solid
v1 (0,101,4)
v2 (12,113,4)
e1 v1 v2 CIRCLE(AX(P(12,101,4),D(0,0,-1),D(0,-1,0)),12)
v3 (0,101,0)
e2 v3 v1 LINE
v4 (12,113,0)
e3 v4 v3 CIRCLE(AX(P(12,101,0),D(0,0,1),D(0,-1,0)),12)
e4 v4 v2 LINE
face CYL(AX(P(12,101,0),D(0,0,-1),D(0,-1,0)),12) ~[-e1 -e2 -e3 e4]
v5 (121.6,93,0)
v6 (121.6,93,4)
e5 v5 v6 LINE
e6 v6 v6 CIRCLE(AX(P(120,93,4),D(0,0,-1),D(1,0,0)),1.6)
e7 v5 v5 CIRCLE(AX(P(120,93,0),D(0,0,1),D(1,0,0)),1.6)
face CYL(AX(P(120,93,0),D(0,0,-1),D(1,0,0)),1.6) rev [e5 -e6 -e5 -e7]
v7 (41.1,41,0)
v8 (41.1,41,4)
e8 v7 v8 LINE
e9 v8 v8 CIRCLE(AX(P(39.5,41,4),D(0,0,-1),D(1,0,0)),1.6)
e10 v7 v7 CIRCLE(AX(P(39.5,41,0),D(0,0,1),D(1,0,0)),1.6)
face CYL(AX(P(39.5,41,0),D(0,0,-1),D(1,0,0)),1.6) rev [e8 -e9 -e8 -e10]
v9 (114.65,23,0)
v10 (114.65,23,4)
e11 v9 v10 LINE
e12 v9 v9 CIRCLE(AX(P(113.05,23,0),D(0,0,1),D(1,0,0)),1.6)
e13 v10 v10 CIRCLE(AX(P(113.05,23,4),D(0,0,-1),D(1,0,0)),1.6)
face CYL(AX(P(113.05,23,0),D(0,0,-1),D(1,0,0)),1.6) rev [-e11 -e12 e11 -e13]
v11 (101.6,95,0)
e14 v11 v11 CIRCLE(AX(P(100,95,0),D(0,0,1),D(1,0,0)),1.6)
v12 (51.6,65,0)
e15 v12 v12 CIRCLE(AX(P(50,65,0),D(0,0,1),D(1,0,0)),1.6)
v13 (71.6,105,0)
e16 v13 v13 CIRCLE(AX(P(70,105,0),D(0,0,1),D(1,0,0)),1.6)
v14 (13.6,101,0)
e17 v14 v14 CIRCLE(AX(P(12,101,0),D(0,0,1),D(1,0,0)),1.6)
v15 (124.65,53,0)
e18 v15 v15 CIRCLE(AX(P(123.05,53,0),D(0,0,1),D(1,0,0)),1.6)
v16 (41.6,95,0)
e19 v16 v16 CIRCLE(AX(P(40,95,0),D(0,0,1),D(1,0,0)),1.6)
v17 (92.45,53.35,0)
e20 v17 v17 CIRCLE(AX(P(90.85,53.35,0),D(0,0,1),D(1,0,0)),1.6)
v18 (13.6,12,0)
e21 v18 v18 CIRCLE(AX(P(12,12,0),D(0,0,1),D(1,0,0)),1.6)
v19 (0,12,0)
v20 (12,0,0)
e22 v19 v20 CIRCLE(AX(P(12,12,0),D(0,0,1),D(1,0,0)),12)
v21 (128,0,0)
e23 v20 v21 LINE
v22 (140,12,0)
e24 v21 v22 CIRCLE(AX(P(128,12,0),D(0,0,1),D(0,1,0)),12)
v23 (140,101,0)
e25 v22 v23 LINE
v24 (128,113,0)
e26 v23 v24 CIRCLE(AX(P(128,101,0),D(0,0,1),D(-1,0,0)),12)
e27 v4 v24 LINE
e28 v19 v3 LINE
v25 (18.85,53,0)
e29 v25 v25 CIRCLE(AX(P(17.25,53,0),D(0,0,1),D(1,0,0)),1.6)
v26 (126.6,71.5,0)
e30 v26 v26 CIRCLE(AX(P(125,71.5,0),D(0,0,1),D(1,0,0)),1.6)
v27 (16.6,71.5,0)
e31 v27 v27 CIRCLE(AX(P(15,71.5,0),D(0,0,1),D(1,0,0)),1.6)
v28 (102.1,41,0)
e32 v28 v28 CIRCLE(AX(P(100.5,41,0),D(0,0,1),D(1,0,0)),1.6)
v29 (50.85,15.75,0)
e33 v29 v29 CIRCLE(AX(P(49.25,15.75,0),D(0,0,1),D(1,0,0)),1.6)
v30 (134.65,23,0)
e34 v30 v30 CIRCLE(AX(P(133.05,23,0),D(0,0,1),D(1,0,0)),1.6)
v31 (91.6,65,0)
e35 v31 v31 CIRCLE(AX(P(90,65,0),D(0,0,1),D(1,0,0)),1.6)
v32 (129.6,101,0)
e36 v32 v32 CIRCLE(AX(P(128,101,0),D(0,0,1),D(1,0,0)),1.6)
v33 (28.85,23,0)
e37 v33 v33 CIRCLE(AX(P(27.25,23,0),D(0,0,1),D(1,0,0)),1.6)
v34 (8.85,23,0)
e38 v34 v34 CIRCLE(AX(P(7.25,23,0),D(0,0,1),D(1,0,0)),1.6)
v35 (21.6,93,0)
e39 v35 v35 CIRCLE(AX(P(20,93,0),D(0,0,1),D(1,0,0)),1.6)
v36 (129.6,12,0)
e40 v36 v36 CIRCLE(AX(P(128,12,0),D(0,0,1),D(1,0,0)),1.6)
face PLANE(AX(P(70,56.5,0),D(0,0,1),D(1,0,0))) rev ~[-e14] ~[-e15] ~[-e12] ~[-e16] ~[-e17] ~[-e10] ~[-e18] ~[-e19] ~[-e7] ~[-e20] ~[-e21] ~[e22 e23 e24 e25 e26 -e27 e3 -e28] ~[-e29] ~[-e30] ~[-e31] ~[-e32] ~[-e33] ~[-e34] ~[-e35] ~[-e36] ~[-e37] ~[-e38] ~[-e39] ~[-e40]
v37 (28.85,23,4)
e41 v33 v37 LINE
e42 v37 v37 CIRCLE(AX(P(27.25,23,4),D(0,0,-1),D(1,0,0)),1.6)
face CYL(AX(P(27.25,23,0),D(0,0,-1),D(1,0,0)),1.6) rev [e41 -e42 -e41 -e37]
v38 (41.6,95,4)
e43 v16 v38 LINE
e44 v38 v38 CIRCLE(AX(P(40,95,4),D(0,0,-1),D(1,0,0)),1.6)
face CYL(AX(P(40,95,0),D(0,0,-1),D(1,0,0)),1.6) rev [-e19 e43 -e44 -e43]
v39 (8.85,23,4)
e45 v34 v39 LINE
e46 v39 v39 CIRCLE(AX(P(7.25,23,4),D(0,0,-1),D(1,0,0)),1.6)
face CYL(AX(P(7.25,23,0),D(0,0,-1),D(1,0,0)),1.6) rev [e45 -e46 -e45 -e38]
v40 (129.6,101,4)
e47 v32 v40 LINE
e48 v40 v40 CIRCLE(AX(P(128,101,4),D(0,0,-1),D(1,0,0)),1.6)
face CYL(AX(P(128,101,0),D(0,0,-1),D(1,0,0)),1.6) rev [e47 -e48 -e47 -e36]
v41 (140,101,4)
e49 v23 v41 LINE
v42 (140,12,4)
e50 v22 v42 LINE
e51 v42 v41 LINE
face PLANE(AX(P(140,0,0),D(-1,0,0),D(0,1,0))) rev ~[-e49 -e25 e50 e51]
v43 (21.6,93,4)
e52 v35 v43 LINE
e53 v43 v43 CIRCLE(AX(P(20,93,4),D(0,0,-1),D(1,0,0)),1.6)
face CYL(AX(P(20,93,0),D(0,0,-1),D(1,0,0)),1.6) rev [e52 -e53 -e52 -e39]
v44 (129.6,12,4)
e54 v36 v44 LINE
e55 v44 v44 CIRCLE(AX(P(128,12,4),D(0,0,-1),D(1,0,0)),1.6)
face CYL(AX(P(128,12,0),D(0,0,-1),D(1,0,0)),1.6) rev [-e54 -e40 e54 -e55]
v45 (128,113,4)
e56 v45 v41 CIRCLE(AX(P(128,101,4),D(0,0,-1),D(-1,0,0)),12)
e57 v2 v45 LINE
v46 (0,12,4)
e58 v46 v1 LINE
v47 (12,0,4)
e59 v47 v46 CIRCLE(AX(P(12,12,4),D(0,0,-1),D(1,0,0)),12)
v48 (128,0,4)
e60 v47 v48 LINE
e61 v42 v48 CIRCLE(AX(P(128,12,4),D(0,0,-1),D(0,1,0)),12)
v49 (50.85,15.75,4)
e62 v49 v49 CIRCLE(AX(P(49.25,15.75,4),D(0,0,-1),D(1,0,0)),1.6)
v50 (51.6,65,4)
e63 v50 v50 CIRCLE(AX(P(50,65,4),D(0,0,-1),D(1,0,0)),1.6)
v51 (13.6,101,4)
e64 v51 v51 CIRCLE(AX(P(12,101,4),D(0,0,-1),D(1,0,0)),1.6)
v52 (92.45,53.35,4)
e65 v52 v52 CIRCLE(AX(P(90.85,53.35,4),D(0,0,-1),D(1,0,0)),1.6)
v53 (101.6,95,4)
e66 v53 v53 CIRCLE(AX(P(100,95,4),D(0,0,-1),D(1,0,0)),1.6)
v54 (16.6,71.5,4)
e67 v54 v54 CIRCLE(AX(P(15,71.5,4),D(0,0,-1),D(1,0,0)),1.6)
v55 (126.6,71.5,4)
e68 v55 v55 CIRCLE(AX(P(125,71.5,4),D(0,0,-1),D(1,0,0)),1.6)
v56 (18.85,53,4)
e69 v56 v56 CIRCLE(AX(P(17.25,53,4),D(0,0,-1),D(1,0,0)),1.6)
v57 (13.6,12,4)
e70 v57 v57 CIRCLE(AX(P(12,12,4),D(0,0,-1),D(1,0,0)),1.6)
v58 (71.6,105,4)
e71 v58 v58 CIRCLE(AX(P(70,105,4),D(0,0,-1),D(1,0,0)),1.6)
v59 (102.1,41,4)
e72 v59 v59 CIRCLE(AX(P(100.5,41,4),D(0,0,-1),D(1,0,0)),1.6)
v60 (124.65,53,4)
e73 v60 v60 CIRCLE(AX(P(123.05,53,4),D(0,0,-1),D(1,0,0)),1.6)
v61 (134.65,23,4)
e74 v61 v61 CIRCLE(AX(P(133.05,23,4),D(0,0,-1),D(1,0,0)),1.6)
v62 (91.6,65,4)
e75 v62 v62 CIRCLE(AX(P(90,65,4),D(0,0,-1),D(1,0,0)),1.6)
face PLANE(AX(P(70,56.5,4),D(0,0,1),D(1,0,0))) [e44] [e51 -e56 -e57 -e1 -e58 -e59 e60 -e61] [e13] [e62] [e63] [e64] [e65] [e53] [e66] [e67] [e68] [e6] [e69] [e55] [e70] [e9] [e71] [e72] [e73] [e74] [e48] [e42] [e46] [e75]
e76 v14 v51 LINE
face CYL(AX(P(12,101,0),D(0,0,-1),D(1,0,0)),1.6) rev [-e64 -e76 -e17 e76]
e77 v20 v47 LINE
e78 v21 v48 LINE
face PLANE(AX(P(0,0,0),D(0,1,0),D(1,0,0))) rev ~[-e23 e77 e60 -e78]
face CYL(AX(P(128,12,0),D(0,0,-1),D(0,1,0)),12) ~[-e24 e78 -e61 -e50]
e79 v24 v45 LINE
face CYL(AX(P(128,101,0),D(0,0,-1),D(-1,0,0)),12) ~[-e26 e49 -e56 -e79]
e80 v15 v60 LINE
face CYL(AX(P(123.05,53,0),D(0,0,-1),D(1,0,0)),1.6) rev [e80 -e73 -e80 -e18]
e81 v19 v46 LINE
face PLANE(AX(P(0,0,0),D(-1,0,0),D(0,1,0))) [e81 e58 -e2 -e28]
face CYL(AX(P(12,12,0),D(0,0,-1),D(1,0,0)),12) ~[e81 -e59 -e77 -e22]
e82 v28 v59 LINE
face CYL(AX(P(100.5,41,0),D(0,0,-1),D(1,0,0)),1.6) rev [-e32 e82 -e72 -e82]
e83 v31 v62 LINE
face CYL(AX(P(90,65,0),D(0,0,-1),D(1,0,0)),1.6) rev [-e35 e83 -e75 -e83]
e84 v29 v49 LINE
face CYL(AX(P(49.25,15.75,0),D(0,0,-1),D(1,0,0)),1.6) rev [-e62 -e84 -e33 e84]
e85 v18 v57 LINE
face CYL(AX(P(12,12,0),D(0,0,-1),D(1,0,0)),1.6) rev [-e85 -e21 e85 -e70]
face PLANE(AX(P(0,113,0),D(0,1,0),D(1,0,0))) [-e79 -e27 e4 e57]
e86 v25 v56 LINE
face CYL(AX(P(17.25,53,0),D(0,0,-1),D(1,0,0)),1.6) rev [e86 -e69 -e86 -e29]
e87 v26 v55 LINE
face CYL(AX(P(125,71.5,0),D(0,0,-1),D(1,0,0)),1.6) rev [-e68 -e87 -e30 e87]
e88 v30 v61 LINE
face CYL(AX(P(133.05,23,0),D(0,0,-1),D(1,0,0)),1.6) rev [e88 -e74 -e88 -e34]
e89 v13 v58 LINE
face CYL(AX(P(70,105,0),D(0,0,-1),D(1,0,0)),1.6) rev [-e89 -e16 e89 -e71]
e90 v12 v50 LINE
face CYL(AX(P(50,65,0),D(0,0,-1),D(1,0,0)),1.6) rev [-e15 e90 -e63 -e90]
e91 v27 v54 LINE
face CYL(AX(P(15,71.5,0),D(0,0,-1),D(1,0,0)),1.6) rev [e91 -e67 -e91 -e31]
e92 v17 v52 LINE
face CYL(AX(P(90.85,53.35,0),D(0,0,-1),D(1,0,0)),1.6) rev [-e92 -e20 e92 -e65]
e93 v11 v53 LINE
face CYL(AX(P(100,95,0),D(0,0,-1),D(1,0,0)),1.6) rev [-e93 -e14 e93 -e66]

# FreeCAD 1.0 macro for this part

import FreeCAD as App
import Part
import Sketcher

doc = App.newDocument("Part")
body = doc.addObject("PartDesign::Body", "Body")

sketch1 = body.newObject("Sketcher::SketchObject", "Sketch")
sketch1.AttachmentSupport = (doc.getObject("XY_Plane"), [""])
sketch1.MapMode = "FlatFace"
sketch1.addGeometry(Part.Circle(App.Vector(120, 93, 0), App.Vector(0, 0, 1), 1.6), False)
sketch1.addConstraint([
    Sketcher.Constraint("Diameter", 0, 3.2),
    Sketcher.Constraint("DistanceX", -1, 1, 0, 3, 120.0),
    Sketcher.Constraint("DistanceY", -1, 1, 0, 3, 93.0),
])
pad1 = body.newObject("PartDesign::Pad", "Pad")
pad1.Profile = sketch1
pad1.Length = 10
body2 = doc.addObject("PartDesign::Body", "Body001")
body2.AllowCompound = True

sketch2 = body2.newObject("Sketcher::SketchObject", "Sketch001")
sketch2.AttachmentSupport = (doc.getObject("XY_Plane001"), [""])
sketch2.MapMode = "FlatFace"
sketch2.addGeometry(Part.Circle(App.Vector(20, 93, 0), App.Vector(0, 0, 1), 1.6), False)
sketch2.addConstraint([
    Sketcher.Constraint("Diameter", 0, 3.2),
    Sketcher.Constraint("DistanceX", -1, 1, 0, 3, 20.0),
    Sketcher.Constraint("DistanceY", -1, 1, 0, 3, 93.0),
])
pad2 = body2.newObject("PartDesign::Pad", "Pad001")
pad2.Profile = sketch2
pad2.Length = 10
doc.recompute()

boolean = body2.newObject("PartDesign::Boolean", "Boolean")
boolean.Type = "Fuse"
boolean.addObjects([body])
body3 = doc.addObject("PartDesign::Body", "Body002")

sketch3 = body3.newObject("Sketcher::SketchObject", "Sketch002")
sketch3.AttachmentSupport = (doc.getObject("XY_Plane002"), [""])
sketch3.MapMode = "FlatFace"
sketch3.addGeometry(Part.Circle(App.Vector(125, 71.5, 0), App.Vector(0, 0, 1), 1.6), False)
sketch3.addConstraint([
    Sketcher.Constraint("Diameter", 0, 3.2),
    Sketcher.Constraint("DistanceX", -1, 1, 0, 3, 125.0),
    Sketcher.Constraint("DistanceY", -1, 1, 0, 3, 71.5),
])
pad3 = body3.newObject("PartDesign::Pad", "Pad002")
pad3.Profile = sketch3
pad3.Length = 10
body4 = doc.addObject("PartDesign::Body", "Body003")
body4.AllowCompound = True

sketch4 = body4.newObject("Sketcher::SketchObject", "Sketch003")
sketch4.AttachmentSupport = (doc.getObject("XY_Plane003"), [""])
sketch4.MapMode = "FlatFace"
sketch4.addGeometry(Part.Circle(App.Vector(15, 71.5, 0), App.Vector(0, 0, 1), 1.6), False)
sketch4.addConstraint([
    Sketcher.Constraint("Diameter", 0, 3.2),
    Sketcher.Constraint("DistanceX", -1, 1, 0, 3, 15.0),
    Sketcher.Constraint("DistanceY", -1, 1, 0, 3, 71.5),
])
pad4 = body4.newObject("PartDesign::Pad", "Pad003")
pad4.Profile = sketch4
pad4.Length = 10
doc.recompute()

boolean2 = body4.newObject("PartDesign::Boolean", "Boolean001")
boolean2.Type = "Fuse"
boolean2.addObjects([body3])
body5 = doc.addObject("PartDesign::Body", "Body004")

sketch5 = body5.newObject("Sketcher::SketchObject", "Sketch004")
sketch5.AttachmentSupport = (doc.getObject("XY_Plane004"), [""])
sketch5.MapMode = "FlatFace"
sketch5.addGeometry(Part.Circle(App.Vector(12, 12, 0), App.Vector(0, 0, 1), 12), False)
sketch5.addConstraint([
    Sketcher.Constraint("Diameter", 0, 24.0),
    Sketcher.Constraint("DistanceX", -1, 1, 0, 3, 12.0),
    Sketcher.Constraint("DistanceY", -1, 1, 0, 3, 12.0),
])
pad5 = body5.newObject("PartDesign::Pad", "Pad004")
pad5.Profile = sketch5
pad5.Length = 10
body6 = doc.addObject("PartDesign::Body", "Body005")

sketch6 = body6.newObject("Sketcher::SketchObject", "Sketch005")
sketch6.AttachmentSupport = (doc.getObject("XY_Plane005"), [""])
sketch6.MapMode = "FlatFace"
sketch6.addGeometry([
    Part.LineSegment(App.Vector(0, 12, 0), App.Vector(0, 0, 0)),
    Part.LineSegment(App.Vector(0, 0, 0), App.Vector(12, 0, 0)),
    Part.LineSegment(App.Vector(12, 0, 0), App.Vector(12, 12, 0)),
    Part.LineSegment(App.Vector(12, 12, 0), App.Vector(0, 12, 0)),
], False)
sketch6.addConstraint([
    Sketcher.Constraint("Coincident", 0, 2, 1, 1),
    Sketcher.Constraint("Coincident", 1, 2, 2, 1),
    Sketcher.Constraint("Coincident", 2, 2, 3, 1),
    Sketcher.Constraint("Coincident", 3, 2, 0, 1),
    Sketcher.Constraint("Vertical", 0),
    Sketcher.Constraint("Horizontal", 1),
    Sketcher.Constraint("Vertical", 2),
    Sketcher.Constraint("Horizontal", 3),
    Sketcher.Constraint("Coincident", 0, 2, -1, 1),
    Sketcher.Constraint("Equal", 3, 0),
    Sketcher.Constraint("DistanceX", 1, 1, 1, 2, 12.0),
])
pad6 = body6.newObject("PartDesign::Pad", "Pad005")
pad6.Profile = sketch6
pad6.Length = 4
doc.recompute()

boolean3 = body6.newObject("PartDesign::Boolean", "Boolean002")
boolean3.Type = "Cut"
boolean3.addObjects([body5])
body7 = doc.addObject("PartDesign::Body", "Body006")
doc.recompute()

body6.Placement = App.Placement(App.Vector(140, 0, 0), App.Rotation(App.Vector(0, 0, 1), 90))
boolean4 = body7.newObject("PartDesign::Boolean", "Boolean003")
boolean4.Type = "Fuse"
boolean4.addObjects([body6])
body8 = doc.addObject("PartDesign::Body", "Body007")

sketch7 = body8.newObject("Sketcher::SketchObject", "Sketch006")
sketch7.AttachmentSupport = (doc.getObject("XY_Plane007"), [""])
sketch7.MapMode = "FlatFace"
sketch7.addGeometry(Part.Circle(App.Vector(12, 12, 0), App.Vector(0, 0, 1), 12), False)
sketch7.addConstraint([
    Sketcher.Constraint("Diameter", 0, 24.0),
    Sketcher.Constraint("DistanceX", -1, 1, 0, 3, 12.0),
    Sketcher.Constraint("DistanceY", -1, 1, 0, 3, 12.0),
])
pad7 = body8.newObject("PartDesign::Pad", "Pad006")
pad7.Profile = sketch7
pad7.Length = 10
body9 = doc.addObject("PartDesign::Body", "Body008")

sketch8 = body9.newObject("Sketcher::SketchObject", "Sketch007")
sketch8.AttachmentSupport = (doc.getObject("XY_Plane008"), [""])
sketch8.MapMode = "FlatFace"
sketch8.addGeometry([
    Part.LineSegment(App.Vector(0, 12, 0), App.Vector(0, 0, 0)),
    Part.LineSegment(App.Vector(0, 0, 0), App.Vector(12, 0, 0)),
    Part.LineSegment(App.Vector(12, 0, 0), App.Vector(12, 12, 0)),
    Part.LineSegment(App.Vector(12, 12, 0), App.Vector(0, 12, 0)),
], False)
sketch8.addConstraint([
    Sketcher.Constraint("Coincident", 0, 2, 1, 1),
    Sketcher.Constraint("Coincident", 1, 2, 2, 1),
    Sketcher.Constraint("Coincident", 2, 2, 3, 1),
    Sketcher.Constraint("Coincident", 3, 2, 0, 1),
    Sketcher.Constraint("Vertical", 0),
    Sketcher.Constraint("Horizontal", 1),
    Sketcher.Constraint("Vertical", 2),
    Sketcher.Constraint("Horizontal", 3),
    Sketcher.Constraint("Coincident", 0, 2, -1, 1),
    Sketcher.Constraint("Equal", 3, 0),
    Sketcher.Constraint("DistanceX", 1, 1, 1, 2, 12.0),
])
pad8 = body9.newObject("PartDesign::Pad", "Pad007")
pad8.Profile = sketch8
pad8.Length = 4
doc.recompute()

boolean5 = body9.newObject("PartDesign::Boolean", "Boolean004")
boolean5.Type = "Cut"
boolean5.addObjects([body8])
body10 = doc.addObject("PartDesign::Body", "Body009")
doc.recompute()

body9.Placement = App.Placement(App.Vector(140, 113, 0), App.Rotation(App.Vector(0, 0, 1), 180))
boolean6 = body10.newObject("PartDesign::Boolean", "Boolean005")
boolean6.Type = "Fuse"
boolean6.addObjects([body9])
body11 = doc.addObject("PartDesign::Body", "Body010")

sketch9 = body11.newObject("Sketcher::SketchObject", "Sketch008")
sketch9.AttachmentSupport = (doc.getObject("XY_Plane010"), [""])
sketch9.MapMode = "FlatFace"
sketch9.addGeometry(Part.Circle(App.Vector(12, 12, 0), App.Vector(0, 0, 1), 12), False)
sketch9.addConstraint([
    Sketcher.Constraint("Diameter", 0, 24.0),
    Sketcher.Constraint("DistanceX", -1, 1, 0, 3, 12.0),
    Sketcher.Constraint("DistanceY", -1, 1, 0, 3, 12.0),
])
pad9 = body11.newObject("PartDesign::Pad", "Pad008")
pad9.Profile = sketch9
pad9.Length = 10
body12 = doc.addObject("PartDesign::Body", "Body011")

sketch10 = body12.newObject("Sketcher::SketchObject", "Sketch009")
sketch10.AttachmentSupport = (doc.getObject("XY_Plane011"), [""])
sketch10.MapMode = "FlatFace"
sketch10.addGeometry([
    Part.LineSegment(App.Vector(0, 12, 0), App.Vector(0, 0, 0)),
    Part.LineSegment(App.Vector(0, 0, 0), App.Vector(12, 0, 0)),
    Part.LineSegment(App.Vector(12, 0, 0), App.Vector(12, 12, 0)),
    Part.LineSegment(App.Vector(12, 12, 0), App.Vector(0, 12, 0)),
], False)
sketch10.addConstraint([
    Sketcher.Constraint("Coincident", 0, 2, 1, 1),
    Sketcher.Constraint("Coincident", 1, 2, 2, 1),
    Sketcher.Constraint("Coincident", 2, 2, 3, 1),
    Sketcher.Constraint("Coincident", 3, 2, 0, 1),
    Sketcher.Constraint("Vertical", 0),
    Sketcher.Constraint("Horizontal", 1),
    Sketcher.Constraint("Vertical", 2),
    Sketcher.Constraint("Horizontal", 3),
    Sketcher.Constraint("Coincident", 0, 2, -1, 1),
    Sketcher.Constraint("Equal", 3, 0),
    Sketcher.Constraint("DistanceX", 1, 1, 1, 2, 12.0),
])
pad10 = body12.newObject("PartDesign::Pad", "Pad009")
pad10.Profile = sketch10
pad10.Length = 4
doc.recompute()

boolean7 = body12.newObject("PartDesign::Boolean", "Boolean006")
boolean7.Type = "Cut"
boolean7.addObjects([body11])
body13 = doc.addObject("PartDesign::Body", "Body012")
doc.recompute()

body12.Placement = App.Placement(App.Vector(0, 113, 0), App.Rotation(App.Vector(0, 0, 1), 270))
boolean8 = body13.newObject("PartDesign::Boolean", "Boolean007")
boolean8.Type = "Fuse"
boolean8.addObjects([body12])
body14 = doc.addObject("PartDesign::Body", "Body013")

sketch11 = body14.newObject("Sketcher::SketchObject", "Sketch010")
sketch11.AttachmentSupport = (doc.getObject("XY_Plane013"), [""])
sketch11.MapMode = "FlatFace"
sketch11.addGeometry(Part.Circle(App.Vector(12, 12, 0), App.Vector(0, 0, 1), 12), False)
sketch11.addConstraint([
    Sketcher.Constraint("Diameter", 0, 24.0),
    Sketcher.Constraint("DistanceX", -1, 1, 0, 3, 12.0),
    Sketcher.Constraint("DistanceY", -1, 1, 0, 3, 12.0),
])
pad11 = body14.newObject("PartDesign::Pad", "Pad010")
pad11.Profile = sketch11
pad11.Length = 10
body15 = doc.addObject("PartDesign::Body", "Body014")
body15.AllowCompound = True

sketch12 = body15.newObject("Sketcher::SketchObject", "Sketch011")
sketch12.AttachmentSupport = (doc.getObject("XY_Plane014"), [""])
sketch12.MapMode = "FlatFace"
sketch12.addGeometry([
    Part.LineSegment(App.Vector(0, 12, 0), App.Vector(0, 0, 0)),
    Part.LineSegment(App.Vector(0, 0, 0), App.Vector(12, 0, 0)),
    Part.LineSegment(App.Vector(12, 0, 0), App.Vector(12, 12, 0)),
    Part.LineSegment(App.Vector(12, 12, 0), App.Vector(0, 12, 0)),
], False)
sketch12.addConstraint([
    Sketcher.Constraint("Coincident", 0, 2, 1, 1),
    Sketcher.Constraint("Coincident", 1, 2, 2, 1),
    Sketcher.Constraint("Coincident", 2, 2, 3, 1),
    Sketcher.Constraint("Coincident", 3, 2, 0, 1),
    Sketcher.Constraint("Vertical", 0),
    Sketcher.Constraint("Horizontal", 1),
    Sketcher.Constraint("Vertical", 2),
    Sketcher.Constraint("Horizontal", 3),
    Sketcher.Constraint("Coincident", 0, 2, -1, 1),
    Sketcher.Constraint("Equal", 3, 0),
    Sketcher.Constraint("DistanceX", 1, 1, 1, 2, 12.0),
])
pad12 = body15.newObject("PartDesign::Pad", "Pad011")
pad12.Profile = sketch12
pad12.Length = 4
doc.recompute()

boolean9 = body15.newObject("PartDesign::Boolean", "Boolean008")
boolean9.Type = "Cut"
boolean9.addObjects([body14])
doc.recompute()

boolean10 = body15.newObject("PartDesign::Boolean", "Boolean009")
boolean10.Type = "Fuse"
boolean10.addObjects([body7])
doc.recompute()

boolean11 = body15.newObject("PartDesign::Boolean", "Boolean010")
boolean11.Type = "Fuse"
boolean11.addObjects([body10])
doc.recompute()

boolean12 = body15.newObject("PartDesign::Boolean", "Boolean011")
boolean12.Type = "Fuse"
boolean12.addObjects([body13])
body16 = doc.addObject("PartDesign::Body", "Body015")

sketch13 = body16.newObject("Sketcher::SketchObject", "Sketch012")
sketch13.AttachmentSupport = (doc.getObject("XY_Plane015"), [""])
sketch13.MapMode = "FlatFace"
sketch13.addGeometry(Part.Circle(App.Vector(128, 12, 0), App.Vector(0, 0, 1), 1.6), False)
sketch13.addConstraint([
    Sketcher.Constraint("Diameter", 0, 3.2),
    Sketcher.Constraint("DistanceX", -1, 1, 0, 3, 128.0),
    Sketcher.Constraint("DistanceY", -1, 1, 0, 3, 12.0),
])
pad13 = body16.newObject("PartDesign::Pad", "Pad012")
pad13.Profile = sketch13
pad13.Length = 10
body17 = doc.addObject("PartDesign::Body", "Body016")

sketch14 = body17.newObject("Sketcher::SketchObject", "Sketch013")
sketch14.AttachmentSupport = (doc.getObject("XY_Plane016"), [""])
sketch14.MapMode = "FlatFace"
sketch14.addGeometry(Part.Circle(App.Vector(12, 101, 0), App.Vector(0, 0, 1), 1.6), False)
sketch14.addConstraint([
    Sketcher.Constraint("Diameter", 0, 3.2),
    Sketcher.Constraint("DistanceX", -1, 1, 0, 3, 12.0),
    Sketcher.Constraint("DistanceY", -1, 1, 0, 3, 101.0),
])
pad14 = body17.newObject("PartDesign::Pad", "Pad013")
pad14.Profile = sketch14
pad14.Length = 10
body18 = doc.addObject("PartDesign::Body", "Body017")

sketch15 = body18.newObject("Sketcher::SketchObject", "Sketch014")
sketch15.AttachmentSupport = (doc.getObject("XY_Plane017"), [""])
sketch15.MapMode = "FlatFace"
sketch15.addGeometry(Part.Circle(App.Vector(128, 101, 0), App.Vector(0, 0, 1), 1.6), False)
sketch15.addConstraint([
    Sketcher.Constraint("Diameter", 0, 3.2),
    Sketcher.Constraint("DistanceX", -1, 1, 0, 3, 128.0),
    Sketcher.Constraint("DistanceY", -1, 1, 0, 3, 101.0),
])
pad15 = body18.newObject("PartDesign::Pad", "Pad014")
pad15.Profile = sketch15
pad15.Length = 10
body19 = doc.addObject("PartDesign::Body", "Body018")
body19.AllowCompound = True

sketch16 = body19.newObject("Sketcher::SketchObject", "Sketch015")
sketch16.AttachmentSupport = (doc.getObject("XY_Plane018"), [""])
sketch16.MapMode = "FlatFace"
sketch16.addGeometry(Part.Circle(App.Vector(12, 12, 0), App.Vector(0, 0, 1), 1.6), False)
sketch16.addConstraint([
    Sketcher.Constraint("Diameter", 0, 3.2),
    Sketcher.Constraint("DistanceX", -1, 1, 0, 3, 12.0),
    Sketcher.Constraint("DistanceY", -1, 1, 0, 3, 12.0),
])
pad16 = body19.newObject("PartDesign::Pad", "Pad015")
pad16.Profile = sketch16
pad16.Length = 10
doc.recompute()

boolean13 = body19.newObject("PartDesign::Boolean", "Boolean012")
boolean13.Type = "Fuse"
boolean13.addObjects([body16])
doc.recompute()

boolean14 = body19.newObject("PartDesign::Boolean", "Boolean013")
boolean14.Type = "Fuse"
boolean14.addObjects([body17])
doc.recompute()

boolean15 = body19.newObject("PartDesign::Boolean", "Boolean014")
boolean15.Type = "Fuse"
boolean15.addObjects([body18])
body20 = doc.addObject("PartDesign::Body", "Body019")

sketch17 = body20.newObject("Sketcher::SketchObject", "Sketch016")
sketch17.AttachmentSupport = (doc.getObject("XY_Plane019"), [""])
sketch17.MapMode = "FlatFace"
sketch17.addGeometry(Part.Circle(App.Vector(27.25, 23, 0), App.Vector(0, 0, 1), 1.6), False)
sketch17.addConstraint([
    Sketcher.Constraint("Diameter", 0, 3.2),
    Sketcher.Constraint("DistanceY", -1, 1, 0, 3, 23.0),
    Sketcher.Constraint("DistanceX", -1, 1, 0, 3, 27.25),
])
pad17 = body20.newObject("PartDesign::Pad", "Pad016")
pad17.Profile = sketch17
pad17.Length = 10
body21 = doc.addObject("PartDesign::Body", "Body020")

sketch18 = body21.newObject("Sketcher::SketchObject", "Sketch017")
sketch18.AttachmentSupport = (doc.getObject("XY_Plane020"), [""])
sketch18.MapMode = "FlatFace"
sketch18.addGeometry(Part.Circle(App.Vector(17.25, 53, 0), App.Vector(0, 0, 1), 1.6), False)
sketch18.addConstraint([
    Sketcher.Constraint("Diameter", 0, 3.2),
    Sketcher.Constraint("DistanceY", -1, 1, 0, 3, 53.0),
    Sketcher.Constraint("DistanceX", -1, 1, 0, 3, 17.25),
])
pad18 = body21.newObject("PartDesign::Pad", "Pad017")
pad18.Profile = sketch18
pad18.Length = 10
body22 = doc.addObject("PartDesign::Body", "Body021")
body22.AllowCompound = True

sketch19 = body22.newObject("Sketcher::SketchObject", "Sketch018")
sketch19.AttachmentSupport = (doc.getObject("XY_Plane021"), [""])
sketch19.MapMode = "FlatFace"
sketch19.addGeometry(Part.Circle(App.Vector(7.25, 23, 0), App.Vector(0, 0, 1), 1.6), False)
sketch19.addConstraint([
    Sketcher.Constraint("Diameter", 0, 3.2),
    Sketcher.Constraint("DistanceY", -1, 1, 0, 3, 23.0),
    Sketcher.Constraint("DistanceX", -1, 1, 0, 3, 7.25),
])
pad19 = body22.newObject("PartDesign::Pad", "Pad018")
pad19.Profile = sketch19
pad19.Length = 10
doc.recompute()

boolean16 = body22.newObject("PartDesign::Boolean", "Boolean015")
boolean16.Type = "Fuse"
boolean16.addObjects([body20])
doc.recompute()

boolean17 = body22.newObject("PartDesign::Boolean", "Boolean016")
boolean17.Type = "Fuse"
boolean17.addObjects([body21])
body23 = doc.addObject("PartDesign::Body", "Body022")
body23.AllowCompound = True
doc.recompute()

body22.Placement = App.Placement(App.Vector(105.8, 0, 0), App.Rotation(App.Vector(0, 0, 1), 0))
boolean18 = body23.newObject("PartDesign::Boolean", "Boolean017")
boolean18.Type = "Fuse"
boolean18.addObjects([body22])
body24 = doc.addObject("PartDesign::Body", "Body023")

sketch20 = body24.newObject("Sketcher::SketchObject", "Sketch019")
sketch20.AttachmentSupport = (doc.getObject("XY_Plane023"), [""])
sketch20.MapMode = "FlatFace"
sketch20.addGeometry(Part.Circle(App.Vector(44.35, 40.35, 0), App.Vector(0, 0, 1), 1.6), False)
sketch20.addConstraint([
    Sketcher.Constraint("Diameter", 0, 3.2),
    Sketcher.Constraint("DistanceX", -1, 1, 0, 3, 44.35),
    Sketcher.Constraint("DistanceY", -1, 1, 0, 3, 40.35),
])
pad20 = body24.newObject("PartDesign::Pad", "Pad019")
pad20.Profile = sketch20
pad20.Length = 20
body25 = doc.addObject("PartDesign::Body", "Body024")
body25.AllowCompound = True

sketch21 = body25.newObject("Sketcher::SketchObject", "Sketch020")
sketch21.AttachmentSupport = (doc.getObject("XY_Plane024"), [""])
sketch21.MapMode = "FlatFace"
sketch21.addGeometry(Part.Circle(App.Vector(2.75, 2.75, 0), App.Vector(0, 0, 1), 1.6), False)
sketch21.addConstraint([
    Sketcher.Constraint("Diameter", 0, 3.2),
    Sketcher.Constraint("DistanceX", -1, 1, 0, 3, 2.75),
    Sketcher.Constraint("DistanceY", -1, 1, 0, 3, 2.75),
])
pad21 = body25.newObject("PartDesign::Pad", "Pad020")
pad21.Profile = sketch21
pad21.Length = 20
doc.recompute()

boolean19 = body25.newObject("PartDesign::Boolean", "Boolean018")
boolean19.Type = "Fuse"
boolean19.addObjects([body24])
body26 = doc.addObject("PartDesign::Body", "Body025")
body26.AllowCompound = True
doc.recompute()

body25.Placement = App.Placement(App.Vector(46.5, 13, 0), App.Rotation(App.Vector(0, 0, 1), 0))
boolean20 = body26.newObject("PartDesign::Boolean", "Boolean019")
boolean20.Type = "Fuse"
boolean20.addObjects([body25])
body27 = doc.addObject("PartDesign::Body", "Body026")

sketch22 = body27.newObject("Sketcher::SketchObject", "Sketch021")
sketch22.AttachmentSupport = (doc.getObject("XY_Plane026"), [""])
sketch22.MapMode = "FlatFace"
sketch22.addGeometry(Part.Circle(App.Vector(90, 65, 0), App.Vector(0, 0, 1), 1.6), False)
sketch22.addConstraint([
    Sketcher.Constraint("Diameter", 0, 3.2),
    Sketcher.Constraint("DistanceX", -1, 1, 0, 3, 90.0),
    Sketcher.Constraint("DistanceY", -1, 1, 0, 3, 65.0),
])
pad22 = body27.newObject("PartDesign::Pad", "Pad021")
pad22.Profile = sketch22
pad22.Length = 10
body28 = doc.addObject("PartDesign::Body", "Body027")

sketch23 = body28.newObject("Sketcher::SketchObject", "Sketch022")
sketch23.AttachmentSupport = (doc.getObject("XY_Plane027"), [""])
sketch23.MapMode = "FlatFace"
sketch23.addGeometry(Part.Circle(App.Vector(100, 95, 0), App.Vector(0, 0, 1), 1.6), False)
sketch23.addConstraint([
    Sketcher.Constraint("Diameter", 0, 3.2),
    Sketcher.Constraint("DistanceX", -1, 1, 0, 3, 100.0),
    Sketcher.Constraint("DistanceY", -1, 1, 0, 3, 95.0),
])
pad23 = body28.newObject("PartDesign::Pad", "Pad022")
pad23.Profile = sketch23
pad23.Length = 10
body29 = doc.addObject("PartDesign::Body", "Body028")

sketch24 = body29.newObject("Sketcher::SketchObject", "Sketch023")
sketch24.AttachmentSupport = (doc.getObject("XY_Plane028"), [""])
sketch24.MapMode = "FlatFace"
sketch24.addGeometry(Part.Circle(App.Vector(40, 95, 0), App.Vector(0, 0, 1), 1.6), False)
sketch24.addConstraint([
    Sketcher.Constraint("Diameter", 0, 3.2),
    Sketcher.Constraint("DistanceX", -1, 1, 0, 3, 40.0),
    Sketcher.Constraint("DistanceY", -1, 1, 0, 3, 95.0),
])
pad24 = body29.newObject("PartDesign::Pad", "Pad023")
pad24.Profile = sketch24
pad24.Length = 10
body30 = doc.addObject("PartDesign::Body", "Body029")

sketch25 = body30.newObject("Sketcher::SketchObject", "Sketch024")
sketch25.AttachmentSupport = (doc.getObject("XY_Plane029"), [""])
sketch25.MapMode = "FlatFace"
sketch25.addGeometry(Part.Circle(App.Vector(70, 105, 0), App.Vector(0, 0, 1), 1.6), False)
sketch25.addConstraint([
    Sketcher.Constraint("Diameter", 0, 3.2),
    Sketcher.Constraint("DistanceX", -1, 1, 0, 3, 70.0),
    Sketcher.Constraint("DistanceY", -1, 1, 0, 3, 105.0),
])
pad25 = body30.newObject("PartDesign::Pad", "Pad024")
pad25.Profile = sketch25
pad25.Length = 10
body31 = doc.addObject("PartDesign::Body", "Body030")
body31.AllowCompound = True

sketch26 = body31.newObject("Sketcher::SketchObject", "Sketch025")
sketch26.AttachmentSupport = (doc.getObject("XY_Plane030"), [""])
sketch26.MapMode = "FlatFace"
sketch26.addGeometry(Part.Circle(App.Vector(50, 65, 0), App.Vector(0, 0, 1), 1.6), False)
sketch26.addConstraint([
    Sketcher.Constraint("Diameter", 0, 3.2),
    Sketcher.Constraint("DistanceX", -1, 1, 0, 3, 50.0),
    Sketcher.Constraint("DistanceY", -1, 1, 0, 3, 65.0),
])
pad26 = body31.newObject("PartDesign::Pad", "Pad025")
pad26.Profile = sketch26
pad26.Length = 10
doc.recompute()

boolean21 = body31.newObject("PartDesign::Boolean", "Boolean020")
boolean21.Type = "Fuse"
boolean21.addObjects([body27])
doc.recompute()

boolean22 = body31.newObject("PartDesign::Boolean", "Boolean021")
boolean22.Type = "Fuse"
boolean22.addObjects([body28])
doc.recompute()

boolean23 = body31.newObject("PartDesign::Boolean", "Boolean022")
boolean23.Type = "Fuse"
boolean23.addObjects([body29])
doc.recompute()

boolean24 = body31.newObject("PartDesign::Boolean", "Boolean023")
boolean24.Type = "Fuse"
boolean24.addObjects([body30])
body32 = doc.addObject("PartDesign::Body", "Body031")

sketch27 = body32.newObject("Sketcher::SketchObject", "Sketch026")
sketch27.AttachmentSupport = (doc.getObject("XY_Plane031"), [""])
sketch27.MapMode = "FlatFace"
sketch27.addGeometry(Part.Circle(App.Vector(100.5, 41, 0), App.Vector(0, 0, 1), 1.6), False)
sketch27.addConstraint([
    Sketcher.Constraint("Diameter", 0, 3.2),
    Sketcher.Constraint("DistanceY", -1, 1, 0, 3, 41.0),
    Sketcher.Constraint("DistanceX", -1, 1, 0, 3, 100.5),
])
pad27 = body32.newObject("PartDesign::Pad", "Pad026")
pad27.Profile = sketch27
pad27.Length = 20
body33 = doc.addObject("PartDesign::Body", "Body032")
body33.AllowCompound = True

sketch28 = body33.newObject("Sketcher::SketchObject", "Sketch027")
sketch28.AttachmentSupport = (doc.getObject("XY_Plane032"), [""])
sketch28.MapMode = "FlatFace"
sketch28.addGeometry(Part.Circle(App.Vector(39.5, 41, 0), App.Vector(0, 0, 1), 1.6), False)
sketch28.addConstraint([
    Sketcher.Constraint("Diameter", 0, 3.2),
    Sketcher.Constraint("DistanceY", -1, 1, 0, 3, 41.0),
    Sketcher.Constraint("DistanceX", -1, 1, 0, 3, 39.5),
])
pad28 = body33.newObject("PartDesign::Pad", "Pad027")
pad28.Profile = sketch28
pad28.Length = 20
doc.recompute()

boolean25 = body33.newObject("PartDesign::Boolean", "Boolean024")
boolean25.Type = "Fuse"
boolean25.addObjects([body32])
body34 = doc.addObject("PartDesign::Body", "Body033")

sketch29 = body34.newObject("Sketcher::SketchObject", "Sketch028")
sketch29.AttachmentSupport = (doc.getObject("XY_Plane033"), [""])
sketch29.MapMode = "FlatFace"
sketch29.addGeometry(Part.Circle(App.Vector(27.25, 23, 0), App.Vector(0, 0, 1), 1.6), False)
sketch29.addConstraint([
    Sketcher.Constraint("Diameter", 0, 3.2),
    Sketcher.Constraint("DistanceY", -1, 1, 0, 3, 23.0),
    Sketcher.Constraint("DistanceX", -1, 1, 0, 3, 27.25),
])
pad29 = body34.newObject("PartDesign::Pad", "Pad028")
pad29.Profile = sketch29
pad29.Length = 10
body35 = doc.addObject("PartDesign::Body", "Body034")

sketch30 = body35.newObject("Sketcher::SketchObject", "Sketch029")
sketch30.AttachmentSupport = (doc.getObject("XY_Plane034"), [""])
sketch30.MapMode = "FlatFace"
sketch30.addGeometry(Part.Circle(App.Vector(17.25, 53, 0), App.Vector(0, 0, 1), 1.6), False)
sketch30.addConstraint([
    Sketcher.Constraint("Diameter", 0, 3.2),
    Sketcher.Constraint("DistanceY", -1, 1, 0, 3, 53.0),
    Sketcher.Constraint("DistanceX", -1, 1, 0, 3, 17.25),
])
pad30 = body35.newObject("PartDesign::Pad", "Pad029")
pad30.Profile = sketch30
pad30.Length = 10
body36 = doc.addObject("PartDesign::Body", "Body035")
body36.AllowCompound = True

sketch31 = body36.newObject("Sketcher::SketchObject", "Sketch030")
sketch31.AttachmentSupport = (doc.getObject("XY_Plane035"), [""])
sketch31.MapMode = "FlatFace"
sketch31.addGeometry(Part.Circle(App.Vector(7.25, 23, 0), App.Vector(0, 0, 1), 1.6), False)
sketch31.addConstraint([
    Sketcher.Constraint("Diameter", 0, 3.2),
    Sketcher.Constraint("DistanceY", -1, 1, 0, 3, 23.0),
    Sketcher.Constraint("DistanceX", -1, 1, 0, 3, 7.25),
])
pad31 = body36.newObject("PartDesign::Pad", "Pad030")
pad31.Profile = sketch31
pad31.Length = 10
doc.recompute()

boolean26 = body36.newObject("PartDesign::Boolean", "Boolean025")
boolean26.Type = "Fuse"
boolean26.addObjects([body34])
doc.recompute()

boolean27 = body36.newObject("PartDesign::Boolean", "Boolean026")
boolean27.Type = "Fuse"
boolean27.addObjects([body35])
doc.recompute()

boolean28 = body36.newObject("PartDesign::Boolean", "Boolean027")
boolean28.Type = "Fuse"
boolean28.addObjects([body23])
doc.recompute()

boolean29 = body36.newObject("PartDesign::Boolean", "Boolean028")
boolean29.Type = "Fuse"
boolean29.addObjects([body26])
doc.recompute()

boolean30 = body36.newObject("PartDesign::Boolean", "Boolean029")
boolean30.Type = "Fuse"
boolean30.addObjects([body31])
doc.recompute()

boolean31 = body36.newObject("PartDesign::Boolean", "Boolean030")
boolean31.Type = "Fuse"
boolean31.addObjects([body33])
body37 = doc.addObject("PartDesign::Body", "Body036")

sketch32 = body37.newObject("Sketcher::SketchObject", "Sketch031")
sketch32.AttachmentSupport = (doc.getObject("XY_Plane036"), [""])
sketch32.MapMode = "FlatFace"
sketch32.addGeometry([
    Part.LineSegment(App.Vector(0, 113, 0), App.Vector(0, 0, 0)),
    Part.LineSegment(App.Vector(0, 0, 0), App.Vector(140, 0, 0)),
    Part.LineSegment(App.Vector(140, 0, 0), App.Vector(140, 113, 0)),
    Part.LineSegment(App.Vector(140, 113, 0), App.Vector(0, 113, 0)),
], False)
sketch32.addConstraint([
    Sketcher.Constraint("Coincident", 0, 2, 1, 1),
    Sketcher.Constraint("Coincident", 1, 2, 2, 1),
    Sketcher.Constraint("Coincident", 2, 2, 3, 1),
    Sketcher.Constraint("Coincident", 3, 2, 0, 1),
    Sketcher.Constraint("Vertical", 0),
    Sketcher.Constraint("Horizontal", 1),
    Sketcher.Constraint("Vertical", 2),
    Sketcher.Constraint("Horizontal", 3),
    Sketcher.Constraint("Coincident", 0, 2, -1, 1),
    Sketcher.Constraint("DistanceX", 1, 1, 1, 2, 140.0),
    Sketcher.Constraint("DistanceY", 0, 2, 0, 1, 113.0),
])
pad32 = body37.newObject("PartDesign::Pad", "Pad031")
pad32.Profile = sketch32
pad32.Length = 4
doc.recompute()

boolean32 = body37.newObject("PartDesign::Boolean", "Boolean031")
boolean32.Type = "Cut"
boolean32.addObjects([body36])
doc.recompute()

boolean33 = body37.newObject("PartDesign::Boolean", "Boolean032")
boolean33.Type = "Cut"
boolean33.addObjects([body19])
doc.recompute()

boolean34 = body37.newObject("PartDesign::Boolean", "Boolean033")
boolean34.Type = "Cut"
boolean34.addObjects([body15])
doc.recompute()

boolean35 = body37.newObject("PartDesign::Boolean", "Boolean034")
boolean35.Type = "Cut"
boolean35.addObjects([body4])
doc.recompute()

boolean36 = body37.newObject("PartDesign::Boolean", "Boolean035")
boolean36.Type = "Cut"
boolean36.addObjects([body2])

doc.recompute()
